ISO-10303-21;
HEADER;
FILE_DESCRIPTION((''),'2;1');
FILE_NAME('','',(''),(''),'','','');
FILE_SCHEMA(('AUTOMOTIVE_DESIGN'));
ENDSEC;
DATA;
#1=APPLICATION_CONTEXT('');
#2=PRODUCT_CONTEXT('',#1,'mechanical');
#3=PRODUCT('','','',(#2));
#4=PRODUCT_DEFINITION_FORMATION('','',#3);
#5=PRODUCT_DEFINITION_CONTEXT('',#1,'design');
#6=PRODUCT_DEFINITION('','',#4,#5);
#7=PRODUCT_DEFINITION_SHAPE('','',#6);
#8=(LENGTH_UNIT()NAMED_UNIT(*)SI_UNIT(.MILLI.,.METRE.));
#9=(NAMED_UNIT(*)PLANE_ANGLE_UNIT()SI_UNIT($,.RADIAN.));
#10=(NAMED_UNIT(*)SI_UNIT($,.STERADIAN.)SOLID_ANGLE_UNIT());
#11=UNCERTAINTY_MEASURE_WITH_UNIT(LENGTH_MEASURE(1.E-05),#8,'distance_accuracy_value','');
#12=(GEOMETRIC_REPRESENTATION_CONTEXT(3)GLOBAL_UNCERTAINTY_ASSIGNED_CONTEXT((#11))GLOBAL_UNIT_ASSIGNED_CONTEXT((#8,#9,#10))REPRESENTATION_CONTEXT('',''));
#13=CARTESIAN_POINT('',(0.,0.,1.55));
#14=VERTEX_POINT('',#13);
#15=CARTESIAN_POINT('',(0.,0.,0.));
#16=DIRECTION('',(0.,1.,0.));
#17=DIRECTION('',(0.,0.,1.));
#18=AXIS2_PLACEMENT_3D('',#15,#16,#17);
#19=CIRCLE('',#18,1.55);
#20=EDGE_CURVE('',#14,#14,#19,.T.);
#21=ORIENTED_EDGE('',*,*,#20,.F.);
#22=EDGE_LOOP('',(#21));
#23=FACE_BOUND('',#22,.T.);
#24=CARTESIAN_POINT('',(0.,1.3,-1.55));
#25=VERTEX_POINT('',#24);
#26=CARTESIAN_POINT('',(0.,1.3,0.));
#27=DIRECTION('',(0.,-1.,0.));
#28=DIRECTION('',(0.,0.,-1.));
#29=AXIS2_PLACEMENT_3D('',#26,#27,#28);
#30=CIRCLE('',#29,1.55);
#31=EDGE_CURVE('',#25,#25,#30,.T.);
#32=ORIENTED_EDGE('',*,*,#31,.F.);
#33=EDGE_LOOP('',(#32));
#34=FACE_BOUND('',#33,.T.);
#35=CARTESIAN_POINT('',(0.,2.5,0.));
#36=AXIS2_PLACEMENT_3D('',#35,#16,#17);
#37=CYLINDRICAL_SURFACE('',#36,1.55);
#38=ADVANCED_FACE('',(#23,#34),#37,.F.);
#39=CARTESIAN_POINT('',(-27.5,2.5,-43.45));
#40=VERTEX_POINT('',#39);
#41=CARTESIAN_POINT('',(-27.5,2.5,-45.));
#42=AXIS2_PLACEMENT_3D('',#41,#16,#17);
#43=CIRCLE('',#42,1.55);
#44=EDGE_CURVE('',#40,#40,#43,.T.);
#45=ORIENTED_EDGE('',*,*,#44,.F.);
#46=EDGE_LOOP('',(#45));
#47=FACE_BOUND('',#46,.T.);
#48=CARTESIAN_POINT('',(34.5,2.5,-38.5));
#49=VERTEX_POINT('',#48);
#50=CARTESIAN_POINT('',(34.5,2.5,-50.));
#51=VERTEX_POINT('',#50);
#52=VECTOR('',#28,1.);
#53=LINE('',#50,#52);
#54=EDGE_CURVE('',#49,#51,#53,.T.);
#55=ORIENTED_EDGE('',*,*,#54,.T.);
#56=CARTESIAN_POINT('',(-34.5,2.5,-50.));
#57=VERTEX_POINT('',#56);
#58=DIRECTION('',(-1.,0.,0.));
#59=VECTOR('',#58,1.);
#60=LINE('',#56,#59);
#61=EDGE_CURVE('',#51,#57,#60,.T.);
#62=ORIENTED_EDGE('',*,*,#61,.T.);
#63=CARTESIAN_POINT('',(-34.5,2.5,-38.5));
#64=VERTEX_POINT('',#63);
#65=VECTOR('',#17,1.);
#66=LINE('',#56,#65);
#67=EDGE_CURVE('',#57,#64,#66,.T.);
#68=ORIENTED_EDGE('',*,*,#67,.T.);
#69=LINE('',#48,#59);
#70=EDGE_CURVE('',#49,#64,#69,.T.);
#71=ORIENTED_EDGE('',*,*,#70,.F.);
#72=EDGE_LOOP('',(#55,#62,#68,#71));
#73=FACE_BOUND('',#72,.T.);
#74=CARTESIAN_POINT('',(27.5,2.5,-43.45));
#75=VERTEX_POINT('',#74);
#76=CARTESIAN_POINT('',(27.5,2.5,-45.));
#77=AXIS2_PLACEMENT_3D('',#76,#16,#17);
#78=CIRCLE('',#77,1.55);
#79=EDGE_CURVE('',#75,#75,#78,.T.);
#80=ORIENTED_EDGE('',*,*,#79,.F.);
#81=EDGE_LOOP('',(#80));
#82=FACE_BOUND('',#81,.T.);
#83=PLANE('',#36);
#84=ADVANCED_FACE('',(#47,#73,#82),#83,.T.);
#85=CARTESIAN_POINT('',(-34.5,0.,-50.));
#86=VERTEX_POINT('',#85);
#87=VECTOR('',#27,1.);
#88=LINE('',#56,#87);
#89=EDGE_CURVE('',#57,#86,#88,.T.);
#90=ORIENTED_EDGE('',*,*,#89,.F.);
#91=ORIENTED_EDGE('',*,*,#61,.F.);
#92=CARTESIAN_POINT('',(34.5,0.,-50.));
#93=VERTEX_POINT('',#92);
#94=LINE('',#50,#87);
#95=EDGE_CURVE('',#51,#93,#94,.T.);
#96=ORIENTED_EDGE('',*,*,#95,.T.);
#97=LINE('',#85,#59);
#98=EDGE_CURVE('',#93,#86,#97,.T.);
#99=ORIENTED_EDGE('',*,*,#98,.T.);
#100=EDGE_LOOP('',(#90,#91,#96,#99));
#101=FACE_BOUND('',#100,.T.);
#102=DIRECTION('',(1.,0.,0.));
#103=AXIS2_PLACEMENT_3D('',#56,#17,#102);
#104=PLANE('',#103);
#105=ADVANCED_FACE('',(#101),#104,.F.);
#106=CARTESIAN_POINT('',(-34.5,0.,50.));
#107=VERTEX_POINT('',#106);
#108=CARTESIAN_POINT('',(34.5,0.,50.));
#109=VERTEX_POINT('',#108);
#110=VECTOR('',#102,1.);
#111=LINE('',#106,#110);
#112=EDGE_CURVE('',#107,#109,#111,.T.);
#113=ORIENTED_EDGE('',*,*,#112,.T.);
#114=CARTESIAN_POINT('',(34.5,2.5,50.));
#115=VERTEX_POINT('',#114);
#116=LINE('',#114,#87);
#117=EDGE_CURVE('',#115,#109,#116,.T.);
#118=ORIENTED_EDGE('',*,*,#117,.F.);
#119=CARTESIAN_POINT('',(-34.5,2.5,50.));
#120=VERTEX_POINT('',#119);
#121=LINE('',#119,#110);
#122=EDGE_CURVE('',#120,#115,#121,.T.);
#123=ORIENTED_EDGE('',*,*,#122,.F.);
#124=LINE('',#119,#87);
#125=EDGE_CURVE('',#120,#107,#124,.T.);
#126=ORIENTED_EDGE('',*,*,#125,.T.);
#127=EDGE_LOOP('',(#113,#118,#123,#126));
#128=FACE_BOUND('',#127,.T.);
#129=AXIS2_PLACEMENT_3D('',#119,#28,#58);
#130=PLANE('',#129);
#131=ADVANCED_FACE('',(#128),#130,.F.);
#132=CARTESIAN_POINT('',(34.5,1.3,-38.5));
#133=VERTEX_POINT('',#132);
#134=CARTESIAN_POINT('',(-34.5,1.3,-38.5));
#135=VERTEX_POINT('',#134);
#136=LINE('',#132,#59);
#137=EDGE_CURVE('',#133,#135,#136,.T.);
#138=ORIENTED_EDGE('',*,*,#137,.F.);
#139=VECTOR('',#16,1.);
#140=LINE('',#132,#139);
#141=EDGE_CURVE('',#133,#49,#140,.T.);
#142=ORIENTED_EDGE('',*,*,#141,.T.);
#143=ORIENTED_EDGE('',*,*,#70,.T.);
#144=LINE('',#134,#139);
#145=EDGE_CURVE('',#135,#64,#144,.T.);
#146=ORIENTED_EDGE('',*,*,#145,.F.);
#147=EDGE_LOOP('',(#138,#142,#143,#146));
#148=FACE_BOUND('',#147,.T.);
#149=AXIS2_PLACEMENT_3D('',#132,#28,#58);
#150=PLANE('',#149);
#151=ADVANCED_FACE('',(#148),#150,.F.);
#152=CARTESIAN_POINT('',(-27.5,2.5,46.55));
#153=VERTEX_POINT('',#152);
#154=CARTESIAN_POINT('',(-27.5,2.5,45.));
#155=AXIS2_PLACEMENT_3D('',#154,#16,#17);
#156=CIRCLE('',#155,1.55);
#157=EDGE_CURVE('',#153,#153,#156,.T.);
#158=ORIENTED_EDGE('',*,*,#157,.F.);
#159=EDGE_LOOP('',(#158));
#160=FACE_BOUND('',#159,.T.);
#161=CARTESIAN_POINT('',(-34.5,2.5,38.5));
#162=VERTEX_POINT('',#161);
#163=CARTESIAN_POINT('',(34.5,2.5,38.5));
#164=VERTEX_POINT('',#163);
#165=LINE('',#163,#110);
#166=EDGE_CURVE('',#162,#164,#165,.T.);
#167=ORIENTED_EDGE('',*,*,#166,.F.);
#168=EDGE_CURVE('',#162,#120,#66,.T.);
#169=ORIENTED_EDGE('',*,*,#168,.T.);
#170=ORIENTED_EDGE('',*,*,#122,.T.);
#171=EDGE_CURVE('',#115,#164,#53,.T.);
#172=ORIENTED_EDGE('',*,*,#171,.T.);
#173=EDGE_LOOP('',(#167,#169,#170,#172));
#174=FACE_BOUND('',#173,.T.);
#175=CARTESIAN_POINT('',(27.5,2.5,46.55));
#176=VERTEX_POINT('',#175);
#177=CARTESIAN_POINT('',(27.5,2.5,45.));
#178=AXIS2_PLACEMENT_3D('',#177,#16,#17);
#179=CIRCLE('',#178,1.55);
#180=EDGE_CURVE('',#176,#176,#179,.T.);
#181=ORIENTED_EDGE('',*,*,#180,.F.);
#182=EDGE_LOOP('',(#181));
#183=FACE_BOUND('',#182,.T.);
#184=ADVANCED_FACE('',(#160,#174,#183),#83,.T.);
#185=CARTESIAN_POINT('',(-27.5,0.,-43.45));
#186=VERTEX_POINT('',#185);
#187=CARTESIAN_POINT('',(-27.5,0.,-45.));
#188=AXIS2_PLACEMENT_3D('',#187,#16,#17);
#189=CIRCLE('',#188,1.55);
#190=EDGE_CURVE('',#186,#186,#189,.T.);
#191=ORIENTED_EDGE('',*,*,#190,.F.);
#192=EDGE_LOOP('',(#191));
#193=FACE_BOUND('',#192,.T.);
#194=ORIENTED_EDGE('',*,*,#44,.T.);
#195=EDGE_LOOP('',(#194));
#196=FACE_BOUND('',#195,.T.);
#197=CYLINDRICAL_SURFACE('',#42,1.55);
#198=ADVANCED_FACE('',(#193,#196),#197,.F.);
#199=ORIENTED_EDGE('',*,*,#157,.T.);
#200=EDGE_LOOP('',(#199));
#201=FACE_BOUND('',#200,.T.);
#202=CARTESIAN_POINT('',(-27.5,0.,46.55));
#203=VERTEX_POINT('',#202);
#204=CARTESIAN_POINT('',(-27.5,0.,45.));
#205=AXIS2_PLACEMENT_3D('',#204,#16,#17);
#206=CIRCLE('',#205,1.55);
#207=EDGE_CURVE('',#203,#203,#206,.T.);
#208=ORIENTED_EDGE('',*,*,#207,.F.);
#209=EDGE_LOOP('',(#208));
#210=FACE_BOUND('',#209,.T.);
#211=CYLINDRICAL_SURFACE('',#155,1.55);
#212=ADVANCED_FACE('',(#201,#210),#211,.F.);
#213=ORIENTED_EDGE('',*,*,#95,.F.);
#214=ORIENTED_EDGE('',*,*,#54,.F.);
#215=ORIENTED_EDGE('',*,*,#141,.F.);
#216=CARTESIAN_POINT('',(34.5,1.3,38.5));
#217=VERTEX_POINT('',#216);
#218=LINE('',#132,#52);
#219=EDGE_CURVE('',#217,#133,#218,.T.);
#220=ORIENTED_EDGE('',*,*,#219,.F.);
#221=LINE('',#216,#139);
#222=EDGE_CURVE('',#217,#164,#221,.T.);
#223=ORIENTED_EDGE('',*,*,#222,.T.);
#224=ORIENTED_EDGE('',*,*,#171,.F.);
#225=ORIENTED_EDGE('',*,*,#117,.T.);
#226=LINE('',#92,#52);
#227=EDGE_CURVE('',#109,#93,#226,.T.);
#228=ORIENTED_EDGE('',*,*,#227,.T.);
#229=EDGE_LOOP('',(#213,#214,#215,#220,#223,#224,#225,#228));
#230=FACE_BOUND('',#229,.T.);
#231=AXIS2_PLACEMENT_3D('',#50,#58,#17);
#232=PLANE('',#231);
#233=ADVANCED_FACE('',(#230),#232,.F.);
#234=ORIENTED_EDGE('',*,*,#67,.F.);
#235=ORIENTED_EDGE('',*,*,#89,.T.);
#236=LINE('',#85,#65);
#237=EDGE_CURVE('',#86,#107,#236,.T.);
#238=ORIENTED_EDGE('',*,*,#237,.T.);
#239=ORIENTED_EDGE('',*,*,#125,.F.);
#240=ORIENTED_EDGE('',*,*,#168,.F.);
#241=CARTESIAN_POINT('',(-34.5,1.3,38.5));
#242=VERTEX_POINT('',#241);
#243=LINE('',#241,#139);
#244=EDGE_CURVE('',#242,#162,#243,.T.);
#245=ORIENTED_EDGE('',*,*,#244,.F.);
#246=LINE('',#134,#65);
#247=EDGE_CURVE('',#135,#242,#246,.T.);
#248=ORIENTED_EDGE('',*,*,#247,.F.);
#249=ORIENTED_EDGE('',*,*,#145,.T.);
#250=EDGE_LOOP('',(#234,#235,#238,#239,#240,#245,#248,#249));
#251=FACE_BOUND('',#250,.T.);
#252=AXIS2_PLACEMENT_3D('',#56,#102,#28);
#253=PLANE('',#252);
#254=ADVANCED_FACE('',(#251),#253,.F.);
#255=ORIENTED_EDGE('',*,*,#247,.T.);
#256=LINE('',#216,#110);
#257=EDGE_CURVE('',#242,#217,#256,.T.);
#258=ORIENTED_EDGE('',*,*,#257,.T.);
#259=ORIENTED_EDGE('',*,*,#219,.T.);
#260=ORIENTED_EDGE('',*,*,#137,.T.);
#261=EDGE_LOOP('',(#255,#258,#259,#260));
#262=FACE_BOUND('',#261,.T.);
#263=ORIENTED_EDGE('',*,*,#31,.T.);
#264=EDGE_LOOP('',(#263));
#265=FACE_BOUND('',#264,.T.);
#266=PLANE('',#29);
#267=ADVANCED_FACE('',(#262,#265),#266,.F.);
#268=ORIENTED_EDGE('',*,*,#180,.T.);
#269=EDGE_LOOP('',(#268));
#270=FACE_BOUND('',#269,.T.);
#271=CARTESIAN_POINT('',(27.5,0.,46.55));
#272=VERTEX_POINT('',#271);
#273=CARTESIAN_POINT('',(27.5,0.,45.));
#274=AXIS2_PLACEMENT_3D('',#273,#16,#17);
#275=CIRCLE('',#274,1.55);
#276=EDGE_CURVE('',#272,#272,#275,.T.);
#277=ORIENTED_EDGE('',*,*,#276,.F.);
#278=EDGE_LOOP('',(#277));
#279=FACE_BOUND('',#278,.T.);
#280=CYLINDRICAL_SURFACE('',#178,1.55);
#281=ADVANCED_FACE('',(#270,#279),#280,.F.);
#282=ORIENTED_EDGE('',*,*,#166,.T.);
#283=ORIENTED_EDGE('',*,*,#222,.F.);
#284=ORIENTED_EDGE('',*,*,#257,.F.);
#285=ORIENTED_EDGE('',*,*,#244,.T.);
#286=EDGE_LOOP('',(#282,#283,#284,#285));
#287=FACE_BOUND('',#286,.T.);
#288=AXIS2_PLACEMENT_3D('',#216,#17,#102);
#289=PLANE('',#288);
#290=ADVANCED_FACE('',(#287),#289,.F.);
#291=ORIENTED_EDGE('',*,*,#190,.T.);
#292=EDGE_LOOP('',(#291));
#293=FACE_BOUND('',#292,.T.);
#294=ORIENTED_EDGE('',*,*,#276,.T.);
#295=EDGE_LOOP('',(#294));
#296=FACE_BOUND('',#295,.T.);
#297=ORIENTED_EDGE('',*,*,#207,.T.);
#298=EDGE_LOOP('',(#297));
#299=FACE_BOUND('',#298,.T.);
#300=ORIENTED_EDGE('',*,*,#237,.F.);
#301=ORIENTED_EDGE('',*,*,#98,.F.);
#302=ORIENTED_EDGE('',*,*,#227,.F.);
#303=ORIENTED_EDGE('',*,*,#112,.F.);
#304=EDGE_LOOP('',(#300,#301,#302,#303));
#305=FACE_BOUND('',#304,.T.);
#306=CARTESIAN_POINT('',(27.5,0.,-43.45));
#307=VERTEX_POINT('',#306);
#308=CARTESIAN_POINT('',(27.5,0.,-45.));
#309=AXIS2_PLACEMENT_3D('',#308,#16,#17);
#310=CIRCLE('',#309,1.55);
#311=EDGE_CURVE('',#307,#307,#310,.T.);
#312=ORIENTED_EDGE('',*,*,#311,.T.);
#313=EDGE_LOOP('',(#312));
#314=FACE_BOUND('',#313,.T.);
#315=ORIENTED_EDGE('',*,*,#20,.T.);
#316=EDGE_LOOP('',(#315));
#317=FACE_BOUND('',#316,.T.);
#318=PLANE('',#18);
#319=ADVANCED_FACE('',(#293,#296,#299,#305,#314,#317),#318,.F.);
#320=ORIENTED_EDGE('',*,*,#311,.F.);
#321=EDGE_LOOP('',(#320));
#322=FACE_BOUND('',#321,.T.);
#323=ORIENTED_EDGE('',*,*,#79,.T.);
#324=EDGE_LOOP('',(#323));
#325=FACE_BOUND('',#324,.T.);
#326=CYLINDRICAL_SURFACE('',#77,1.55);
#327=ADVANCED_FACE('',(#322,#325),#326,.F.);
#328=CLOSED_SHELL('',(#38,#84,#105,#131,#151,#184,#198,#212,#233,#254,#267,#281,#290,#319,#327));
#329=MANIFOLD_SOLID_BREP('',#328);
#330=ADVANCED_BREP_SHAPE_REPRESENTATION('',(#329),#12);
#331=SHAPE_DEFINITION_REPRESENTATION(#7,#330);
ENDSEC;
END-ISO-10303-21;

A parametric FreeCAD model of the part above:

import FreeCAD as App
import Part
import Sketcher

V = App.Vector

doc = App.newDocument("Part")
body = doc.addObject("PartDesign::Body", "Body")

# Sketch on XZ plane
sketch1 = body.newObject("Sketcher::SketchObject", "Sketch")
sketch1.AttachmentSupport = (doc.getObject("XZ_Plane"), [""])
sketch1.MapMode = "FlatFace"
sketch1.addGeometry(Part.LineSegment(V(-34, -50, 0), V(-34, 50, 0)), False)
sketch1.addGeometry(Part.LineSegment(V(-34, 50, 0), V(34, 50, 0)), False)
sketch1.addGeometry(Part.LineSegment(V(34, 50, 0), V(34, -50, 0)), False)
sketch1.addGeometry(Part.LineSegment(V(34, -50, 0), V(-34, -50, 0)), False)
sketch1.addConstraint(Sketcher.Constraint("Coincident", 0, 2, 1, 1))
sketch1.addConstraint(Sketcher.Constraint("Coincident", 1, 2, 2, 1))
sketch1.addConstraint(Sketcher.Constraint("Coincident", 2, 2, 3, 1))
sketch1.addConstraint(Sketcher.Constraint("Coincident", 3, 2, 0, 1))
sketch1.addConstraint(Sketcher.Constraint("Vertical", 0))
sketch1.addConstraint(Sketcher.Constraint("Horizontal", 1))
sketch1.addConstraint(Sketcher.Constraint("Vertical", 2))
sketch1.addConstraint(Sketcher.Constraint("Horizontal", 3))
sketch1.addConstraint(Sketcher.Constraint("Symmetric", 0, 2, 2, 2, -1, 1))
sketch1.addConstraint(Sketcher.Constraint("DistanceX", 1, 1, 1, 2, 69.0))
sketch1.addConstraint(Sketcher.Constraint("DistanceY", 0, 1, 0, 2, 100.0))
pad1 = body.newObject("PartDesign::Pad", "Pad")
pad1.Profile = sketch1
pad1.Length = 2.5
pad1.Reversed = True

# Sketch on XZ plane
sketch2 = body.newObject("Sketcher::SketchObject", "Sketch001")
sketch2.AttachmentSupport = (doc.getObject("XZ_Plane"), [""])
sketch2.MapMode = "FlatFace"
sketch2.AttachmentOffset = App.Placement(V(0, 0, -2.5), App.Rotation())
sketch2.addGeometry(Part.LineSegment(V(-34, -38, 0), V(-34, 38, 0)), False)
sketch2.addGeometry(Part.LineSegment(V(-34, 38, 0), V(34, 38, 0)), False)
sketch2.addGeometry(Part.LineSegment(V(34, 38, 0), V(34, -38, 0)), False)
sketch2.addGeometry(Part.LineSegment(V(34, -38, 0), V(-34, -38, 0)), False)
sketch2.addConstraint(Sketcher.Constraint("Coincident", 0, 2, 1, 1))
sketch2.addConstraint(Sketcher.Constraint("Coincident", 1, 2, 2, 1))
sketch2.addConstraint(Sketcher.Constraint("Coincident", 2, 2, 3, 1))
sketch2.addConstraint(Sketcher.Constraint("Coincident", 3, 2, 0, 1))
sketch2.addConstraint(Sketcher.Constraint("Vertical", 0))
sketch2.addConstraint(Sketcher.Constraint("Horizontal", 1))
sketch2.addConstraint(Sketcher.Constraint("Vertical", 2))
sketch2.addConstraint(Sketcher.Constraint("Horizontal", 3))
sketch2.addConstraint(Sketcher.Constraint("Symmetric", 0, 2, 2, 2, -1, 1))
sketch2.addConstraint(Sketcher.Constraint("DistanceX", 1, 1, 1, 2, 69.0))
sketch2.addConstraint(Sketcher.Constraint("DistanceY", 0, 1, 0, 2, 77.0))
pocket1 = body.newObject("PartDesign::Pocket", "Pocket")
pocket1.Profile = sketch2
pocket1.Length = 1.2
pocket1.Reversed = True

# Sketch on XZ plane
sketch3 = body.newObject("Sketcher::SketchObject", "Sketch002")
sketch3.AttachmentSupport = (doc.getObject("XZ_Plane"), [""])
sketch3.MapMode = "FlatFace"
sketch3.AttachmentOffset = App.Placement(V(0, 0, -2.5), App.Rotation())
sketch3.addGeometry(Part.Circle(V(-27.5, -45, 0), V(0, 0, 1), 1.6), False)
sketch3.addGeometry(Part.Circle(V(27.5, -45, 0), V(0, 0, 1), 1.6), False)
sketch3.addGeometry(Part.Circle(V(-27.5, 45, 0), V(0, 0, 1), 1.6), False)
sketch3.addGeometry(Part.Circle(V(27.5, 45, 0), V(0, 0, 1), 1.6), False)
sketch3.addGeometry(Part.Circle(V(0, 0, 0), V(0, 0, 1), 1.6), False)
sketch3.addConstraint(Sketcher.Constraint("Coincident", 4, 3, -1, 1))
sketch3.addConstraint(Sketcher.Constraint("Equal", 0, 1))
sketch3.addConstraint(Sketcher.Constraint("Equal", 1, 2))
sketch3.addConstraint(Sketcher.Constraint("Equal", 2, 3))
sketch3.addConstraint(Sketcher.Constraint("Equal", 3, 4))
sketch3.addConstraint(Sketcher.Constraint("Symmetric", 1, 3, 2, 3, -1, 1))
sketch3.addConstraint(Sketcher.Constraint("Symmetric", 0, 3, 3, 3, -1, 1))
sketch3.addConstraint(Sketcher.Constraint("Symmetric", 0, 3, 1, 3, -2))
sketch3.addConstraint(Sketcher.Constraint("Diameter", 0, 3.1))
sketch3.addConstraint(Sketcher.Constraint("DistanceY", 0, 3, -1, 1, 45.0))
sketch3.addConstraint(Sketcher.Constraint("DistanceX", 0, 3, 1, 3, 55.0))
doc.recompute()
hole = body.newObject("PartDesign::Hole", "Hole")
hole.Profile = sketch3
hole.ThreadType = "None"
hole.Diameter = 3.1
hole.DepthType = "ThroughAll"
hole.Reversed = True

doc.recompute()
